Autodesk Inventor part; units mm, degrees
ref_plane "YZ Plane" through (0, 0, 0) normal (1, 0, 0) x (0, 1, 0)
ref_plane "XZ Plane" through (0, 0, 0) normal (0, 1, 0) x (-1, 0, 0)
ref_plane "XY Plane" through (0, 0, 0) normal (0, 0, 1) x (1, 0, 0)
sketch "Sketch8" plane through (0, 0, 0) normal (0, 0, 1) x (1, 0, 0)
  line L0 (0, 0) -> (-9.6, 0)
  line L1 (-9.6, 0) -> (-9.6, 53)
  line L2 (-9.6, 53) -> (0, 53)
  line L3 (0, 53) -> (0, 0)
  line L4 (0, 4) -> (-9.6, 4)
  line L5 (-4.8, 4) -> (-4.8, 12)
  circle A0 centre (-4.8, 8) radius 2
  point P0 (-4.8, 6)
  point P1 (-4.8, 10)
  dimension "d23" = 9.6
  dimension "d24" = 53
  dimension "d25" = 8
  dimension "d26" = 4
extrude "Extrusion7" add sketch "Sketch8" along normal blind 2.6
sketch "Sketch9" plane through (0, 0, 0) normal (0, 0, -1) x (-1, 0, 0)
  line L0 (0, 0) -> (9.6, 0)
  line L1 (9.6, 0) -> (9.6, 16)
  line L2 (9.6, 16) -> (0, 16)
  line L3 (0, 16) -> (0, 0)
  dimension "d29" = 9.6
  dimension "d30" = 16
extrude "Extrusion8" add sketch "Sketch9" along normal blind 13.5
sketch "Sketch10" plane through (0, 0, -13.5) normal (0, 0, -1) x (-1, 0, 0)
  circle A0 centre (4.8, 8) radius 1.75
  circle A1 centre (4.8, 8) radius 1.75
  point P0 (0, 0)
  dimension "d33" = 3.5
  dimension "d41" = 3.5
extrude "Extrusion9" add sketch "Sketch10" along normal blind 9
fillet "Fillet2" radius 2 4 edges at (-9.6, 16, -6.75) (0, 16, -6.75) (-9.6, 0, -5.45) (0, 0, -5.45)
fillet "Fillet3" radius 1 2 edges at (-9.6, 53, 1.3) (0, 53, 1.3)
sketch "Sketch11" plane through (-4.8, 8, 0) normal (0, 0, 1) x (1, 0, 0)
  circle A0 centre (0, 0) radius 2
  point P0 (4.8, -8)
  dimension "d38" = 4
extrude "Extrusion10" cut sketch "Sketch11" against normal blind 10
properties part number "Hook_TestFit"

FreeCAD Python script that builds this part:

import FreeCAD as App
import Part
import Sketcher

V = App.Vector
Q = App.Units.Quantity


def edges_at(feature, points):
    """Names of the edges that pass closest to the given points."""
    edges = feature.Shape.Edges
    near = lambda p: min(range(len(edges)), key=lambda i: edges[i].distToShape(Part.Vertex(*p))[0])
    return sorted({f"Edge{near(p) + 1}" for p in points})

doc = App.newDocument("Part")
params = doc.addObject("Spreadsheet::Sheet", "Params")
for row, (alias, value) in enumerate([
    ("sketch1_diameter", "4 mm"),
    ("sketch1_height", "53 mm"),
    ("sketch1_width", "9.6 mm"),
    ("pad1_length", "2.6 mm"),
    ("sketch2_height", "16 mm"),
    ("sketch2_width", "9.6 mm"),
    ("pad2_length", "13.5 mm"),
    ("sketch3_diameter", "3.5 mm"),
    ("pad3_length", "9 mm"),
    ("fillet_radius", "2 mm"),
    ("fillet2_radius", "1 mm"),
    ("sketch4_diameter", "4 mm"),
    ("pocket1_length", "10 mm"),
], start=1):
    params.set(f"A{row}", alias)
    params.set(f"B{row}", "=" + value)
    params.setAlias(f"B{row}", alias)

body = doc.addObject("PartDesign::Body", "Body")

# Sketch on XY plane
sketch1 = body.newObject("Sketcher::SketchObject", "Sketch")
sketch1.AttachmentSupport = (doc.getObject("XY_Plane"), [""])
sketch1.MapMode = "FlatFace"
sketch1.addGeometry([
    Part.LineSegment(V(-9.6, 0, 0), V(0, 0, 0)),  # 0
    Part.LineSegment(V(0, 0, 0), V(0, 53, 0)),  # 1
    Part.LineSegment(V(0, 53, 0), V(-9.6, 53, 0)),  # 2
    Part.LineSegment(V(-9.6, 53, 0), V(-9.6, 0, 0)),  # 3
    Part.Circle(V(-4.8, 8, 0), V(0, 0, 1), 2),  # 4
], False)
sketch1.addConstraint([
    Sketcher.Constraint("Coincident", 0, 2, 1, 1),
    Sketcher.Constraint("Coincident", 1, 2, 2, 1),
    Sketcher.Constraint("Coincident", 2, 2, 3, 1),
    Sketcher.Constraint("Coincident", 3, 2, 0, 1),
    Sketcher.Constraint("Horizontal", 0),
    Sketcher.Constraint("Vertical", 1),
    Sketcher.Constraint("Horizontal", 2),
    Sketcher.Constraint("Vertical", 3),
    Sketcher.Constraint("Coincident", 0, 2, -1, 1),
    Sketcher.Constraint("Diameter", 4, Q("4 mm")),
    Sketcher.Constraint("DistanceY", 1, 1, 1, 2, Q("53 mm")),
    Sketcher.Constraint("DistanceX", 0, 1, 0, 2, Q("9.6 mm")),
    Sketcher.Constraint("DistanceY", -1, 1, 4, 3, Q("8 mm")),
    Sketcher.Constraint("DistanceX", 4, 3, -1, 1, Q("4.8 mm")),
])
sketch1.setExpression("Constraints[9]", "Params.sketch1_diameter")
sketch1.setExpression("Constraints[10]", "Params.sketch1_height")
sketch1.setExpression("Constraints[11]", "Params.sketch1_width")
pad1 = body.newObject("PartDesign::Pad", "Pad")
pad1.Profile = sketch1
pad1.setExpression("Length", "Params.pad1_length")

# Sketch on XY plane
sketch2 = body.newObject("Sketcher::SketchObject", "Sketch001")
sketch2.AttachmentSupport = (doc.getObject("XY_Plane"), [""])
sketch2.MapMode = "FlatFace"
sketch2.addGeometry([
    Part.LineSegment(V(0, 16, 0), V(0, 0, 0)),
    Part.LineSegment(V(0, 0, 0), V(-9.6, 0, 0)),
    Part.LineSegment(V(-9.6, 0, 0), V(-9.6, 16, 0)),
    Part.LineSegment(V(-9.6, 16, 0), V(0, 16, 0)),
], False)
sketch2.addConstraint([
    Sketcher.Constraint("Coincident", 0, 2, 1, 1),
    Sketcher.Constraint("Coincident", 1, 2, 2, 1),
    Sketcher.Constraint("Coincident", 2, 2, 3, 1),
    Sketcher.Constraint("Coincident", 3, 2, 0, 1),
    Sketcher.Constraint("Vertical", 0),
    Sketcher.Constraint("Horizontal", 1),
    Sketcher.Constraint("Vertical", 2),
    Sketcher.Constraint("Horizontal", 3),
    Sketcher.Constraint("Coincident", 0, 2, -1, 1),
    Sketcher.Constraint("DistanceY", 0, 2, 0, 1, Q("16 mm")),
    Sketcher.Constraint("DistanceX", 1, 2, 1, 1, Q("9.6 mm")),
])
sketch2.setExpression("Constraints[9]", "Params.sketch2_height")
sketch2.setExpression("Constraints[10]", "Params.sketch2_width")
pad2 = body.newObject("PartDesign::Pad", "Pad001")
pad2.Profile = sketch2
pad2.setExpression("Length", "Params.pad2_length")
pad2.Reversed = True

# Sketch on XY plane
sketch3 = body.newObject("Sketcher::SketchObject", "Sketch002")
sketch3.AttachmentSupport = (doc.getObject("XY_Plane"), [""])
sketch3.MapMode = "FlatFace"
sketch3.AttachmentOffset = App.Placement(V(0, 0, -13.5), App.Rotation())
sketch3.addGeometry(Part.Circle(V(-4.8, 8, 0), V(0, 0, 1), 1.75), False)
sketch3.addConstraint([
    Sketcher.Constraint("Diameter", 0, Q("3.5 mm")),
    Sketcher.Constraint("DistanceY", -1, 1, 0, 3, Q("8 mm")),
    Sketcher.Constraint("DistanceX", 0, 3, -1, 1, Q("4.8 mm")),
])
sketch3.setExpression("Constraints[0]", "Params.sketch3_diameter")
pad3 = body.newObject("PartDesign::Pad", "Pad002")
pad3.Profile = sketch3
pad3.setExpression("Length", "Params.pad3_length")
pad3.Reversed = True
doc.recompute()

fillet = body.newObject("PartDesign::Fillet", "Fillet")
fillet.Base = (pad3, edges_at(pad3, [
    (-9.6, 16, -6.75),
    (0, 16, -6.75),
    (-9.6, 0, -5.45),
    (0, 0, -5.45),
]))
fillet.setExpression("Radius", "Params.fillet_radius")
doc.recompute()

fillet2 = body.newObject("PartDesign::Fillet", "Fillet001")
fillet2.Base = (fillet, edges_at(fillet, [(-9.6, 53, 1.3), (0, 53, 1.3)]))
fillet2.setExpression("Radius", "Params.fillet2_radius")

# Sketch on XY plane
sketch4 = body.newObject("Sketcher::SketchObject", "Sketch003")
sketch4.AttachmentSupport = (doc.getObject("XY_Plane"), [""])
sketch4.MapMode = "FlatFace"
sketch4.addGeometry(Part.Circle(V(-4.8, 8, 0), V(0, 0, 1), 2), False)
sketch4.addConstraint([
    Sketcher.Constraint("Diameter", 0, Q("4 mm")),
    Sketcher.Constraint("DistanceY", -1, 1, 0, 3, Q("8 mm")),
    Sketcher.Constraint("DistanceX", 0, 3, -1, 1, Q("4.8 mm")),
])
sketch4.setExpression("Constraints[0]", "Params.sketch4_diameter")
pocket1 = body.newObject("PartDesign::Pocket", "Pocket")
pocket1.Profile = sketch4
pocket1.setExpression("Length", "Params.pocket1_length")

doc.recompute()
